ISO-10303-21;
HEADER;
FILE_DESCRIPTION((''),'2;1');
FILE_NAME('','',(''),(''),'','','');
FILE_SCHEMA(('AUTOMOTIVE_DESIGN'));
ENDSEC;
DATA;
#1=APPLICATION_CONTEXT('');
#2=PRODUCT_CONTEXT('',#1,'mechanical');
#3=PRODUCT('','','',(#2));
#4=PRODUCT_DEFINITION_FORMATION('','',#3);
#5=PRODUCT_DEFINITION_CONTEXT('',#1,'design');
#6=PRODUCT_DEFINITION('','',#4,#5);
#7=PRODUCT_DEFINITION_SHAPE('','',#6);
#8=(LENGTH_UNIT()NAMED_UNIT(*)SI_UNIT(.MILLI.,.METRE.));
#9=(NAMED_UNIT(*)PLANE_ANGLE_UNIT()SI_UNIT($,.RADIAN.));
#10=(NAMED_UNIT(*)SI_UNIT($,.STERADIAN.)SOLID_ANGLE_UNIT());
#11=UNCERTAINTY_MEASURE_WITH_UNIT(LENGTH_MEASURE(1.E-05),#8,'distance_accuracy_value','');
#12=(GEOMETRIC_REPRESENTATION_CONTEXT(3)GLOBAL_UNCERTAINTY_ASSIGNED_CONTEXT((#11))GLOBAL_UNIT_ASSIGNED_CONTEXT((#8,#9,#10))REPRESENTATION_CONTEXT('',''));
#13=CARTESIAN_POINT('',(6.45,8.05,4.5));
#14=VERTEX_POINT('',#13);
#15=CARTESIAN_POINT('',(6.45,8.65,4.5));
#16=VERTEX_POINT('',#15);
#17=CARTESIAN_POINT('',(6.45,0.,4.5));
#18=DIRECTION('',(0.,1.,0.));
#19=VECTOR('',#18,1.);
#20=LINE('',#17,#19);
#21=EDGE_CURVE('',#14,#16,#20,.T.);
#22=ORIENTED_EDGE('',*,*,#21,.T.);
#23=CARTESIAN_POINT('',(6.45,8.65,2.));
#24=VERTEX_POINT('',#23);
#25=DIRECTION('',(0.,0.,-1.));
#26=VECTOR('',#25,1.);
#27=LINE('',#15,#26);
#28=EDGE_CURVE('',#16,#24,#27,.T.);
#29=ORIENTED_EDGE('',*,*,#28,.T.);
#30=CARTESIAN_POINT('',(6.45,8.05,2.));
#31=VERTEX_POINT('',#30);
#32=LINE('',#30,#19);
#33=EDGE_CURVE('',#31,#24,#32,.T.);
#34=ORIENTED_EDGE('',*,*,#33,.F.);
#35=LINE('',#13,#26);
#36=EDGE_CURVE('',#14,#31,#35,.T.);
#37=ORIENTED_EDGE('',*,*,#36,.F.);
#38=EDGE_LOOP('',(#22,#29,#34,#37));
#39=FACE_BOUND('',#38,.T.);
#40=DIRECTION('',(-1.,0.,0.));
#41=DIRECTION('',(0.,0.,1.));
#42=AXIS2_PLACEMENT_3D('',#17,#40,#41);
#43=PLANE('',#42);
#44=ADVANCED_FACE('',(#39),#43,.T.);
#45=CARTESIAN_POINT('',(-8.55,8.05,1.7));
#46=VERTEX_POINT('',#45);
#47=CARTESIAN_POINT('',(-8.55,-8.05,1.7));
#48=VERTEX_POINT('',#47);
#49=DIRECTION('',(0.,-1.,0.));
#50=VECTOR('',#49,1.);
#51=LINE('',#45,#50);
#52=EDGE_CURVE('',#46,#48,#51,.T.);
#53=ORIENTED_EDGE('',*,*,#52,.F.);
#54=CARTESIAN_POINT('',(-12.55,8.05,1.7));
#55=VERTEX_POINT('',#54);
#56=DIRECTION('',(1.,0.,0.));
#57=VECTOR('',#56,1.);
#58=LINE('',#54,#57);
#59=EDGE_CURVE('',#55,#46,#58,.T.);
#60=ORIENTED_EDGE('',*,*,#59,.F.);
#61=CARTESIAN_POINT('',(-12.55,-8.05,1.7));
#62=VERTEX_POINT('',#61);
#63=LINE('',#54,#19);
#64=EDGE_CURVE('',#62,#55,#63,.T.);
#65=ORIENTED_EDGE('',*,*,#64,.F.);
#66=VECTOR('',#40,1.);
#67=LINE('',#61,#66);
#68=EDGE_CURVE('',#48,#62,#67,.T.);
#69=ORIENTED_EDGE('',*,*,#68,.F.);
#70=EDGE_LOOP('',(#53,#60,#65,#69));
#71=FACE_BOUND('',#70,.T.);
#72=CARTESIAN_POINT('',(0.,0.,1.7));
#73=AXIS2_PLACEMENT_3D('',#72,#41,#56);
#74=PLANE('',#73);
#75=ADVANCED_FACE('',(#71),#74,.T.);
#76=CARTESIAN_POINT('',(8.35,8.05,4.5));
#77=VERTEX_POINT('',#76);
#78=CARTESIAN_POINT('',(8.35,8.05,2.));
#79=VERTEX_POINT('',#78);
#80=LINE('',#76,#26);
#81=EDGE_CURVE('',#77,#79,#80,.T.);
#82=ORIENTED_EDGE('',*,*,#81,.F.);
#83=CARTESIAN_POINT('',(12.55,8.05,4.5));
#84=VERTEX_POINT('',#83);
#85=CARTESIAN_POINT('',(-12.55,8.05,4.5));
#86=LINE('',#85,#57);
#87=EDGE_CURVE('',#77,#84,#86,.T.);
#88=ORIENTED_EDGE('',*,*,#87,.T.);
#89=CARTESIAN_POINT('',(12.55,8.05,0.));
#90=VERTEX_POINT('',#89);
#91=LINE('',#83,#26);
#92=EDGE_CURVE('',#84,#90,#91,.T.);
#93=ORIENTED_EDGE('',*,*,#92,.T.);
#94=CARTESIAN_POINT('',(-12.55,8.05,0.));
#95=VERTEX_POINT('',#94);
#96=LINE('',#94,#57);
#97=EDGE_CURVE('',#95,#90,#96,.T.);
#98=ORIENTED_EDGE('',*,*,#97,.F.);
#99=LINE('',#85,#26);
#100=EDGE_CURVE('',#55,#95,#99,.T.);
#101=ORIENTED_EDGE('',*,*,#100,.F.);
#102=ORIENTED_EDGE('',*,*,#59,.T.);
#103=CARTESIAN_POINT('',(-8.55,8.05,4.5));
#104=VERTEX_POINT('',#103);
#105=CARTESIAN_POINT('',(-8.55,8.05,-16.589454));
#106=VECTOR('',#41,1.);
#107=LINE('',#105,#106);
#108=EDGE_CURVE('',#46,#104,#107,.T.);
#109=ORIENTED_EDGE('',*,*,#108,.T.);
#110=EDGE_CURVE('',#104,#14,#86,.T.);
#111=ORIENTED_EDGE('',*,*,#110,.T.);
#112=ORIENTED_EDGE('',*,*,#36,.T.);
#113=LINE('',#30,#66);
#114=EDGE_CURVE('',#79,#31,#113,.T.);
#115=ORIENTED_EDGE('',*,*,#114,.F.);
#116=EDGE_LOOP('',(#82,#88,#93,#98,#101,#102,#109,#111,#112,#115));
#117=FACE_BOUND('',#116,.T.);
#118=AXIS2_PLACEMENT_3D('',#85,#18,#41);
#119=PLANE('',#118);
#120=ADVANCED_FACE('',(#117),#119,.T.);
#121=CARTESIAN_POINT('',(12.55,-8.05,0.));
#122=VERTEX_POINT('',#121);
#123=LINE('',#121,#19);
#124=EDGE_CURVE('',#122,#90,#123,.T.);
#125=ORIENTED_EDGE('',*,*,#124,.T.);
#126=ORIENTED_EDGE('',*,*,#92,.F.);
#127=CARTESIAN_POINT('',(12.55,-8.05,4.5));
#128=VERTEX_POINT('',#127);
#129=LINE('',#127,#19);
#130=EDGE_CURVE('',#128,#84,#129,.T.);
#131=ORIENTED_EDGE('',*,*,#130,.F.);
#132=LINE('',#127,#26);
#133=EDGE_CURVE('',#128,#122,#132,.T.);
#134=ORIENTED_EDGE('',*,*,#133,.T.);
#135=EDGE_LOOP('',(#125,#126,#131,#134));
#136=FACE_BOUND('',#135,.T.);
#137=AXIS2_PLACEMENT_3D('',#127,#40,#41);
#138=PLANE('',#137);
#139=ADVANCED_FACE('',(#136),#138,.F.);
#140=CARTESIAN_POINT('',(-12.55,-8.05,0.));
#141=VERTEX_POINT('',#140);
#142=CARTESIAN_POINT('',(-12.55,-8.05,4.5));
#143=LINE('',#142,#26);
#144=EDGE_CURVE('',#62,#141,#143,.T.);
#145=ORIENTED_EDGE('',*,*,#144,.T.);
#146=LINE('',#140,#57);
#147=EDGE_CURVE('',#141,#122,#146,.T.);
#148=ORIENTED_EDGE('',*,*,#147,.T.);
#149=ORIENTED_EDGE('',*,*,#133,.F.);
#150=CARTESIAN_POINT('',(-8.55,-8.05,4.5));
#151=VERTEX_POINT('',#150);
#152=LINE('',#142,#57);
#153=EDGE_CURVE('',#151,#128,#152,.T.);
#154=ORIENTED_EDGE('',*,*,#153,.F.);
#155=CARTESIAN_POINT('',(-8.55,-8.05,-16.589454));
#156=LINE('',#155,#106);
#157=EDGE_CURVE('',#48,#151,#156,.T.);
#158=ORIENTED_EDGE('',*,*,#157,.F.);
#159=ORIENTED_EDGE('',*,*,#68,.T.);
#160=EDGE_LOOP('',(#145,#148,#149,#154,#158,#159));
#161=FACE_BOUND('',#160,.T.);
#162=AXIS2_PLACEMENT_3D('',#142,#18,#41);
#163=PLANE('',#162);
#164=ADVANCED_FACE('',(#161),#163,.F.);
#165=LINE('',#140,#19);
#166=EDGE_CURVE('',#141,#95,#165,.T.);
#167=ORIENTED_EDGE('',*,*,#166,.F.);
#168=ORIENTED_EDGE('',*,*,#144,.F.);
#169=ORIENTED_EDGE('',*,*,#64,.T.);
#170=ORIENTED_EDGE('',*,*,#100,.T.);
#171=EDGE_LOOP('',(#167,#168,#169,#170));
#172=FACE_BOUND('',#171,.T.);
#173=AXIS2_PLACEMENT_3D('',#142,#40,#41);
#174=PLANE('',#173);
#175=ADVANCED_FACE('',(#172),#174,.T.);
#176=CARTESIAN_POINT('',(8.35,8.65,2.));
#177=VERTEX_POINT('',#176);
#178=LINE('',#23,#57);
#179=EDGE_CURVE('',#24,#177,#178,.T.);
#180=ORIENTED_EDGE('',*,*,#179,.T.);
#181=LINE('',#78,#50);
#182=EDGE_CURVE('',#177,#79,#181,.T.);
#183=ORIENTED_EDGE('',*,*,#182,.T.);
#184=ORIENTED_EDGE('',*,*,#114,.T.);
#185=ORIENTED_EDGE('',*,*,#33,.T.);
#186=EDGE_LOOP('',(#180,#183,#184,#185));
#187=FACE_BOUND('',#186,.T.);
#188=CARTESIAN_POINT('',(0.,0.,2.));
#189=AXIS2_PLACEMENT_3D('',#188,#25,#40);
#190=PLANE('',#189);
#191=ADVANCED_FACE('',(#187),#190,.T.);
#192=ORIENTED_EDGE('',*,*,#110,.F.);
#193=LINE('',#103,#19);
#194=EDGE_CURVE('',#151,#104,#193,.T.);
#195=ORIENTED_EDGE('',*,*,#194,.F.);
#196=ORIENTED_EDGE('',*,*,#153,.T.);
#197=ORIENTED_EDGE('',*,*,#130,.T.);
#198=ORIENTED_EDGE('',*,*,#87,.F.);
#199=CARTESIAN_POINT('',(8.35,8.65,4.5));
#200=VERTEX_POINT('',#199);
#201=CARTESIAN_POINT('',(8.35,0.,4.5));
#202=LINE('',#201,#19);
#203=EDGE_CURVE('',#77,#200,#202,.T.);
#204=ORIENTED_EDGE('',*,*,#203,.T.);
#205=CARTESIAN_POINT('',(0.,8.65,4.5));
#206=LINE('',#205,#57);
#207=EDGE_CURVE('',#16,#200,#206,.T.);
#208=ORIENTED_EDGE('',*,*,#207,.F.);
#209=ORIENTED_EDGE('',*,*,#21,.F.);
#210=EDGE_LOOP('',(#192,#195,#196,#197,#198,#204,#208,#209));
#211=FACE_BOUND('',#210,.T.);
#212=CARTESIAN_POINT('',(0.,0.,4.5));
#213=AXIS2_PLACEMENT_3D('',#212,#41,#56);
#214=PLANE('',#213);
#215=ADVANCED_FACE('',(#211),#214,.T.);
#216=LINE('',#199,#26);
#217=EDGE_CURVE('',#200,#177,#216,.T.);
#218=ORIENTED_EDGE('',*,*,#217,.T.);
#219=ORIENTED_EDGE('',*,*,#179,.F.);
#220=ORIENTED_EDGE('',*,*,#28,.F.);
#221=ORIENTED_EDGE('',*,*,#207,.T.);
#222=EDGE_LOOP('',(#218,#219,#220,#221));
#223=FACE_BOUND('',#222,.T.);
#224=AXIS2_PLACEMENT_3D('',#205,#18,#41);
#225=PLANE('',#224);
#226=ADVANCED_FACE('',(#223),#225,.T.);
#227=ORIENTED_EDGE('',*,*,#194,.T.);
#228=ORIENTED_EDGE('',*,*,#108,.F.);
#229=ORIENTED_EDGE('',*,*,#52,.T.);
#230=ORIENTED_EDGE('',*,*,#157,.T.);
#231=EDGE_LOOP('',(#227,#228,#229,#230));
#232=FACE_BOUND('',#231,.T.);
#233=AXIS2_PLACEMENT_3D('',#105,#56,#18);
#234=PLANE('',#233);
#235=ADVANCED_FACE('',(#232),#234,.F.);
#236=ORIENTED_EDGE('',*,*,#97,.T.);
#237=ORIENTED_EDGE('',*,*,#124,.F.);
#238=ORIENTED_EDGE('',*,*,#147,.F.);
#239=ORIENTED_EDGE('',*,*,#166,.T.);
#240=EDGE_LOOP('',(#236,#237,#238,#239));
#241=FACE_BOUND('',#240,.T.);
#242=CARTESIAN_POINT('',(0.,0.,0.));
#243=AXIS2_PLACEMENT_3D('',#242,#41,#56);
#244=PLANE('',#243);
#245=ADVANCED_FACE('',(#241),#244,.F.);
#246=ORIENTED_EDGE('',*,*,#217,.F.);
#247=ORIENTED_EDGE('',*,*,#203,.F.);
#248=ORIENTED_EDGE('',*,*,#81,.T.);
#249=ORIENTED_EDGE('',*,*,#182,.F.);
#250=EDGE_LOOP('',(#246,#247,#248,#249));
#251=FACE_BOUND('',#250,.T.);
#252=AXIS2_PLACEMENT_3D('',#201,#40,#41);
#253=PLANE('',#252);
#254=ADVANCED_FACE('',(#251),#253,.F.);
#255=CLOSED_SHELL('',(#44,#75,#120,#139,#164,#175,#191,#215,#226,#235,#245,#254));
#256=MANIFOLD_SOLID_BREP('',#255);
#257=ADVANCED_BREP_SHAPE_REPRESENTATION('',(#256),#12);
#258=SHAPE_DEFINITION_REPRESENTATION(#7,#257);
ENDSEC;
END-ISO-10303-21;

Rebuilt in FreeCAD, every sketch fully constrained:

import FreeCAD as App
import Part
import Sketcher
Q = App.Units.Quantity

doc = App.newDocument("Part")
body = doc.addObject("PartDesign::Body", "Body")

sketch1 = doc.addObject("Sketcher::SketchObject", "Sketch")
body.addObject(sketch1)
sketch1.AttachmentSupport = (doc.XY_Plane, [""])
sketch1.MapMode = "FlatFace"
sketch1.addGeometry([
    Part.LineSegment(App.Vector(-12.6, 8.1, 0), App.Vector(-12.6, -8.1, 0)),
    Part.LineSegment(App.Vector(-12.6, -8.1, 0), App.Vector(12.6, -8.1, 0)),
    Part.LineSegment(App.Vector(12.6, -8.1, 0), App.Vector(12.6, 8.1, 0)),
    Part.LineSegment(App.Vector(12.6, 8.1, 0), App.Vector(8.3, 8.1, 0)),
    Part.LineSegment(App.Vector(8.3, 8.1, 0), App.Vector(8.3, 8.7, 0)),
    Part.LineSegment(App.Vector(8.3, 8.7, 0), App.Vector(6.5, 8.7, 0)),
    Part.LineSegment(App.Vector(6.5, 8.7, 0), App.Vector(6.5, 8.1, 0)),
    Part.LineSegment(App.Vector(6.5, 8.1, 0), App.Vector(-12.6, 8.1, 0)),
], False)
sketch1.addConstraint([
    Sketcher.Constraint("Coincident", 0, 2, 1, 1),
    Sketcher.Constraint("Coincident", 1, 2, 2, 1),
    Sketcher.Constraint("Coincident", 2, 2, 3, 1),
    Sketcher.Constraint("Coincident", 3, 2, 4, 1),
    Sketcher.Constraint("Coincident", 4, 2, 5, 1),
    Sketcher.Constraint("Coincident", 5, 2, 6, 1),
    Sketcher.Constraint("Coincident", 6, 2, 7, 1),
    Sketcher.Constraint("Coincident", 7, 2, 0, 1),
    Sketcher.Constraint("Vertical", 0),
    Sketcher.Constraint("Horizontal", 1),
    Sketcher.Constraint("Vertical", 2),
    Sketcher.Constraint("Horizontal", 3),
    Sketcher.Constraint("Vertical", 4),
    Sketcher.Constraint("Horizontal", 5),
    Sketcher.Constraint("Vertical", 6),
    Sketcher.Constraint("Horizontal", 7),
    Sketcher.Constraint("Symmetric", 0, 2, 2, 2, -1, 1),
    Sketcher.Constraint("Horizontal", 3, 2, 6, 2),
    Sketcher.Constraint("DistanceX", 7, 2, 7, 1, Q("19 mm")),
    Sketcher.Constraint("DistanceX", 1, 1, 1, 2, Q("25.1 mm")),
    Sketcher.Constraint("DistanceX", 3, 2, 3, 1, Q("4.2 mm")),
    Sketcher.Constraint("DistanceY", 0, 2, 0, 1, Q("16.1 mm")),
    Sketcher.Constraint("DistanceY", 4, 1, 4, 2, Q("0.6 mm")),
])
pad1 = doc.addObject("PartDesign::Pad", "Pad")
body.addObject(pad1)
pad1.Profile = sketch1
pad1.Length = 4.5

sketch2 = doc.addObject("Sketcher::SketchObject", "Sketch001")
body.addObject(sketch2)
sketch2.AttachmentSupport = (doc.XY_Plane, [""])
sketch2.MapMode = "FlatFace"
sketch2.addGeometry([
    Part.LineSegment(App.Vector(8.3, 8.7, 0), App.Vector(8.3, 8.1, 0)),
    Part.LineSegment(App.Vector(8.3, 8.1, 0), App.Vector(6.5, 8.1, 0)),
    Part.LineSegment(App.Vector(6.5, 8.1, 0), App.Vector(6.5, 8.7, 0)),
    Part.LineSegment(App.Vector(6.5, 8.7, 0), App.Vector(8.3, 8.7, 0)),
], False)
sketch2.addConstraint([
    Sketcher.Constraint("Coincident", 0, 2, 1, 1),
    Sketcher.Constraint("Coincident", 1, 2, 2, 1),
    Sketcher.Constraint("Coincident", 2, 2, 3, 1),
    Sketcher.Constraint("Coincident", 3, 2, 0, 1),
    Sketcher.Constraint("Vertical", 0),
    Sketcher.Constraint("Horizontal", 1),
    Sketcher.Constraint("Vertical", 2),
    Sketcher.Constraint("Horizontal", 3),
    Sketcher.Constraint("DistanceX", 1, 2, 1, 1, Q("1.9 mm")),
    Sketcher.Constraint("DistanceY", 0, 2, 0, 1, Q("0.6 mm")),
    Sketcher.Constraint("DistanceX", -1, 1, 0, 2, Q("8.35 mm")),
    Sketcher.Constraint("DistanceY", -1, 1, 0, 2, Q("8.05 mm")),
])
pocket1 = doc.addObject("PartDesign::Pocket", "Pocket")
body.addObject(pocket1)
pocket1.Profile = sketch2
pocket1.Length = 2
pocket1.Reversed = True

sketch3 = doc.addObject("Sketcher::SketchObject", "Sketch002")
body.addObject(sketch3)
sketch3.AttachmentSupport = (doc.XY_Plane, [""])
sketch3.MapMode = "FlatFace"
sketch3.AttachmentOffset = App.Placement(App.Vector(0, 0, 4.5), App.Rotation())
sketch3.addGeometry([
    Part.LineSegment(App.Vector(-12.6, 8.1, 0), App.Vector(-12.6, -8.1, 0)),
    Part.LineSegment(App.Vector(-12.6, -8.1, 0), App.Vector(-8.6, -8.1, 0)),
    Part.LineSegment(App.Vector(-8.6, -8.1, 0), App.Vector(-8.6, 8.1, 0)),
    Part.LineSegment(App.Vector(-8.6, 8.1, 0), App.Vector(-12.6, 8.1, 0)),
], False)
sketch3.addConstraint([
    Sketcher.Constraint("Coincident", 0, 2, 1, 1),
    Sketcher.Constraint("Coincident", 1, 2, 2, 1),
    Sketcher.Constraint("Coincident", 2, 2, 3, 1),
    Sketcher.Constraint("Coincident", 3, 2, 0, 1),
    Sketcher.Constraint("Vertical", 0),
    Sketcher.Constraint("Horizontal", 1),
    Sketcher.Constraint("Vertical", 2),
    Sketcher.Constraint("Horizontal", 3),
    Sketcher.Constraint("DistanceX", 1, 1, 1, 2, Q("4 mm")),
    Sketcher.Constraint("DistanceY", 0, 2, 0, 1, Q("16.1 mm")),
    Sketcher.Constraint("DistanceX", 0, 2, -1, 1, Q("12.55 mm")),
    Sketcher.Constraint("DistanceY", 0, 2, -1, 1, Q("8.05 mm")),
])
pocket2 = doc.addObject("PartDesign::Pocket", "Pocket001")
body.addObject(pocket2)
pocket2.Profile = sketch3
pocket2.Length = 2.8

doc.recompute()
